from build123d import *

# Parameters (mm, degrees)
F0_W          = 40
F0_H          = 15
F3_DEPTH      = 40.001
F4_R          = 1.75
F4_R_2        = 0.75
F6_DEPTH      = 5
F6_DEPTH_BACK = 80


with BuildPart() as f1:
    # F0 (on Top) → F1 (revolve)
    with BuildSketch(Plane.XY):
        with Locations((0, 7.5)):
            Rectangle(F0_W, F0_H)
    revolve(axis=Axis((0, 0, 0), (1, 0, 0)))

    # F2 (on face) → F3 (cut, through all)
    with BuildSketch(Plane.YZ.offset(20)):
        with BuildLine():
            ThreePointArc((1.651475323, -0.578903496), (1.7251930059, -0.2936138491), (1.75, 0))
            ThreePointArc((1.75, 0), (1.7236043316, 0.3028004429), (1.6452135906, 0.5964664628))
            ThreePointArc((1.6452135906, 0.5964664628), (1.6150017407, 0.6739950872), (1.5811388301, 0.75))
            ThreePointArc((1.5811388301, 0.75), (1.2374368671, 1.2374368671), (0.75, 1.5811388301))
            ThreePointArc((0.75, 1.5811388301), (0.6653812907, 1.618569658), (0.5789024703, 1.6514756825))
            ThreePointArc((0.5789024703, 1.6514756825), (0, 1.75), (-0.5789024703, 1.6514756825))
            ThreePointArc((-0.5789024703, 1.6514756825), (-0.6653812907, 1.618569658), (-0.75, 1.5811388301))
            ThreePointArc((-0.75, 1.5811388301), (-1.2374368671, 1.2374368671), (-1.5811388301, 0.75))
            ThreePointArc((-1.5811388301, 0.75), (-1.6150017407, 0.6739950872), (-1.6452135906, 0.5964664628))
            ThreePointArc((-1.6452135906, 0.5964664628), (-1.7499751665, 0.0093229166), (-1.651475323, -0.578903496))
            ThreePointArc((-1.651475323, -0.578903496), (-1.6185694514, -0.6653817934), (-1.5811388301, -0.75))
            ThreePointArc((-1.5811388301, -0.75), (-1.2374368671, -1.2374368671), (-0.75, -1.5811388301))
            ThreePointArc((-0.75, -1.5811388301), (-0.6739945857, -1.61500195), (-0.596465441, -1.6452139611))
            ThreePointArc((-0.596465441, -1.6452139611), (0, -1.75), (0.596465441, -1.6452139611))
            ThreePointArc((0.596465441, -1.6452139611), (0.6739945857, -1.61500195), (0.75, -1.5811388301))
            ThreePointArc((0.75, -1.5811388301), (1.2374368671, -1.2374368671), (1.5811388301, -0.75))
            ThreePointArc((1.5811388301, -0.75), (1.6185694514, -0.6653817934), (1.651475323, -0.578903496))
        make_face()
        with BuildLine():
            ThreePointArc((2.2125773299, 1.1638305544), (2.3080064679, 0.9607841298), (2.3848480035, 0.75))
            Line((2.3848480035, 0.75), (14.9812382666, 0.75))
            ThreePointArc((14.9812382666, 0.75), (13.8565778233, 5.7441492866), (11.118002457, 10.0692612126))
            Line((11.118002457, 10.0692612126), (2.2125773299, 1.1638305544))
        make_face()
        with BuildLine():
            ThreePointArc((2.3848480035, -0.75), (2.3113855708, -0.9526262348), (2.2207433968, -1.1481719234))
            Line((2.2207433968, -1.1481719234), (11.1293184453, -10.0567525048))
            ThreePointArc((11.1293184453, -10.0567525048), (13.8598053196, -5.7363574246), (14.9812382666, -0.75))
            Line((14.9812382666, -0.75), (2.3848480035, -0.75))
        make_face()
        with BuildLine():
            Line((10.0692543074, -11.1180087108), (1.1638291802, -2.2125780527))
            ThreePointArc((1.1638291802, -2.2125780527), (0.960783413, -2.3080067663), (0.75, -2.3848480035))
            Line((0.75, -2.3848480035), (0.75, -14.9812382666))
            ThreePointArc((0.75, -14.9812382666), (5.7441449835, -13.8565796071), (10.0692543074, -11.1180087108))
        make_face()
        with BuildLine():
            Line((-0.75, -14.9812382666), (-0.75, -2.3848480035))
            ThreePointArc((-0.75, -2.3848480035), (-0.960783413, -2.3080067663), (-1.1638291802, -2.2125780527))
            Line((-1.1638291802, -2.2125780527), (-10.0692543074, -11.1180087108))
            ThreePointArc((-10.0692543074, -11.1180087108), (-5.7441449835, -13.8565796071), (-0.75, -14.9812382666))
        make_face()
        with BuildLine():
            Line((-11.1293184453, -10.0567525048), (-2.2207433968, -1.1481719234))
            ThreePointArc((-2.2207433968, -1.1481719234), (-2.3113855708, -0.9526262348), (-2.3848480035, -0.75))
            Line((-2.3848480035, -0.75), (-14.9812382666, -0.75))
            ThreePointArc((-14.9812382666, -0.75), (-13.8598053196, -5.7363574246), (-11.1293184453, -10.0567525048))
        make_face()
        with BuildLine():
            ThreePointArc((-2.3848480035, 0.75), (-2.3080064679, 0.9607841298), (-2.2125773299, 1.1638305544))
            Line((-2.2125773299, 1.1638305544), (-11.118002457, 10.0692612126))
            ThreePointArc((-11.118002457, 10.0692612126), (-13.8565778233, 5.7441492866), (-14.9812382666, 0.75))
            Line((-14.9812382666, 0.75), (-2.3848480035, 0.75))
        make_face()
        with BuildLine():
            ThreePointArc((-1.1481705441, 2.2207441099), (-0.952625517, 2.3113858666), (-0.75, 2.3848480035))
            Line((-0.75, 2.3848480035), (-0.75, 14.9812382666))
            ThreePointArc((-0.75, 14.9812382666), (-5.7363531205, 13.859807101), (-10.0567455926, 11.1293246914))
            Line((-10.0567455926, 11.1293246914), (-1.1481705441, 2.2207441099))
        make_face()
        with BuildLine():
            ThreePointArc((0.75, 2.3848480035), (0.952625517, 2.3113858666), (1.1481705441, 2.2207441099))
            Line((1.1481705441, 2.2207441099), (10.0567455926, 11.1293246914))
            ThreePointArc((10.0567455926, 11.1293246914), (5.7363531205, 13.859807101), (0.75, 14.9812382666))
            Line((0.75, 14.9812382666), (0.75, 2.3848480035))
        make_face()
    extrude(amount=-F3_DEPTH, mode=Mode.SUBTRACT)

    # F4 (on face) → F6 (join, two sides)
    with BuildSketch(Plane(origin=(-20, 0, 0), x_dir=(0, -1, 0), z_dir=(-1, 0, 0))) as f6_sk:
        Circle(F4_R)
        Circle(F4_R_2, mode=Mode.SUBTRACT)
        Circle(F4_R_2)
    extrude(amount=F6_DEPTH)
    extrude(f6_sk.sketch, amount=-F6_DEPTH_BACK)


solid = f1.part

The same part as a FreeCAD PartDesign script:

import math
import FreeCAD as App
import Part
import Sketcher
from FreeCAD import Vector

doc = App.newDocument("Part")
body = doc.addObject("PartDesign::Body", "Body")

sketch1 = body.newObject("Sketcher::SketchObject", "Sketch")
sketch1.AttachmentSupport = (doc.getObject("XY_Plane"), [""])
sketch1.MapMode = "FlatFace"
sketch1.addGeometry(Part.LineSegment(Vector(-20, 15, 0), Vector(-20, 0, 0)), False)
sketch1.addGeometry(Part.LineSegment(Vector(-20, 0, 0), Vector(20, 0, 0)), False)
sketch1.addGeometry(Part.LineSegment(Vector(20, 0, 0), Vector(20, 15, 0)), False)
sketch1.addGeometry(Part.LineSegment(Vector(20, 15, 0), Vector(-20, 15, 0)), False)
sketch1.addConstraint(Sketcher.Constraint("Coincident", 0, 2, 1, 1))
sketch1.addConstraint(Sketcher.Constraint("Coincident", 1, 2, 2, 1))
sketch1.addConstraint(Sketcher.Constraint("Coincident", 2, 2, 3, 1))
sketch1.addConstraint(Sketcher.Constraint("Coincident", 3, 2, 0, 1))
sketch1.addConstraint(Sketcher.Constraint("Vertical", 0))
sketch1.addConstraint(Sketcher.Constraint("Horizontal", 1))
sketch1.addConstraint(Sketcher.Constraint("Vertical", 2))
sketch1.addConstraint(Sketcher.Constraint("Horizontal", 3))
sketch1.addConstraint(Sketcher.Constraint("Symmetric", 0, 2, 1, 2, -1, 1))
sketch1.addConstraint(Sketcher.Constraint("DistanceX", 1, 1, 1, 2, 40.0))
sketch1.addConstraint(Sketcher.Constraint("DistanceY", 0, 2, 0, 1, 15.0))
revolution = body.newObject("PartDesign::Revolution", "Revolution")
revolution.Profile = sketch1
revolution.ReferenceAxis = (sketch1, ["H_Axis"])
revolution.Angle = 360

sketch2 = body.newObject("Sketcher::SketchObject", "Sketch001")
sketch2.AttachmentSupport = (doc.getObject("YZ_Plane"), [""])
sketch2.MapMode = "FlatFace"
sketch2.AttachmentOffset = App.Placement(Vector(0, 0, 20), App.Rotation())
sketch2.addGeometry(Part.ArcOfCircle(Part.Circle(Vector(0, 0, 0), Vector(0, 0, 1), 1.75), math.radians(-19.32), math.radians(0)), False)
sketch2.addGeometry(Part.ArcOfCircle(Part.Circle(Vector(0, 0, 0), Vector(0, 0, 1), 1.75), math.radians(0), math.radians(19.93)), False)
sketch2.addGeometry(Part.ArcOfCircle(Part.Circle(Vector(0, 0, 0), Vector(0, 0, 1), 1.75), math.radians(19.93), math.radians(25.38)), False)
sketch2.addGeometry(Part.ArcOfCircle(Part.Circle(Vector(0, 0, 0), Vector(0, 0, 1), 1.75), math.radians(25), math.radians(65)), False)
sketch2.addGeometry(Part.ArcOfCircle(Part.Circle(Vector(0, 0, 0), Vector(0, 0, 1), 1.75), math.radians(64.62), math.radians(70.68)), False)
sketch2.addGeometry(Part.ArcOfCircle(Part.Circle(Vector(0, 0, 0), Vector(0, 0, 1), 1.75), math.radians(71), math.radians(109)), False)
sketch2.addGeometry(Part.ArcOfCircle(Part.Circle(Vector(0, 0, 0), Vector(0, 0, 1), 1.75), math.radians(109.32), math.radians(115.38)), False)
sketch2.addGeometry(Part.ArcOfCircle(Part.Circle(Vector(0, 0, 0), Vector(0, 0, 1), 1.75), math.radians(115), math.radians(155)), False)
sketch2.addGeometry(Part.ArcOfCircle(Part.Circle(Vector(0, 0, 0), Vector(0, 0, 1), 1.75), math.radians(154.62), math.radians(160.07)), False)
sketch2.addGeometry(Part.ArcOfCircle(Part.Circle(Vector(0, 0, 0), Vector(0, 0, 1), 1.75), math.radians(160), math.radians(199)), False)
sketch2.addGeometry(Part.ArcOfCircle(Part.Circle(Vector(0, 0, 0), Vector(0, 0, 1), 1.75), math.radians(-160.68), math.radians(-154.62)), False)
sketch2.addGeometry(Part.ArcOfCircle(Part.Circle(Vector(0, 0, 0), Vector(0, 0, 1), 1.75), math.radians(-155), math.radians(-115)), False)
sketch2.addGeometry(Part.ArcOfCircle(Part.Circle(Vector(0, 0, 0), Vector(0, 0, 1), 1.75), math.radians(-115.38), math.radians(-109.93)), False)
sketch2.addGeometry(Part.ArcOfCircle(Part.Circle(Vector(0, 0, 0), Vector(0, 0, 1), 1.75), math.radians(-110), math.radians(-70)), False)
sketch2.addGeometry(Part.ArcOfCircle(Part.Circle(Vector(0, 0, 0), Vector(0, 0, 1), 1.75), math.radians(-70.07), math.radians(-64.62)), False)
sketch2.addGeometry(Part.ArcOfCircle(Part.Circle(Vector(0, 0, 0), Vector(0, 0, 1), 1.75), math.radians(-65), math.radians(-25)), False)
sketch2.addGeometry(Part.ArcOfCircle(Part.Circle(Vector(0, 0, 0), Vector(0, 0, 1), 1.75), math.radians(-25.38), math.radians(-19.32)), False)
sketch2.addGeometry(Part.ArcOfCircle(Part.Circle(Vector(0, 0, 0), Vector(0, 0, 1), 2.5), math.radians(17.46), math.radians(27.74)), False)
sketch2.addGeometry(Part.LineSegment(Vector(2.38, 0.75, 0), Vector(14.98, 0.75, 0)), False)
sketch2.addGeometry(Part.ArcOfCircle(Part.Circle(Vector(0, 0, 0), Vector(0, 0, 1), 15), math.radians(3), math.radians(42)), False)
sketch2.addGeometry(Part.LineSegment(Vector(11.12, 10.07, 0), Vector(2.21, 1.16, 0)), False)
sketch2.addGeometry(Part.ArcOfCircle(Part.Circle(Vector(0, 0, 0), Vector(0, 0, 1), 2.5), math.radians(-27.34), math.radians(-17.46)), False)
sketch2.addGeometry(Part.LineSegment(Vector(2.22, -1.15, 0), Vector(11.13, -10.06, 0)), False)
sketch2.addGeometry(Part.ArcOfCircle(Part.Circle(Vector(0, 0, 0), Vector(0, 0, 1), 15), math.radians(-42), math.radians(-3)), False)
sketch2.addGeometry(Part.LineSegment(Vector(14.98, -0.75, 0), Vector(2.38, -0.75, 0)), False)
sketch2.addGeometry(Part.LineSegment(Vector(10.07, -11.12, 0), Vector(1.16, -2.21, 0)), False)
sketch2.addGeometry(Part.ArcOfCircle(Part.Circle(Vector(0, 0, 0), Vector(0, 0, 1), 2.5), math.radians(-72.54), math.radians(-62.26)), False)
sketch2.addGeometry(Part.LineSegment(Vector(0.75, -2.38, 0), Vector(0.75, -14.98, 0)), False)
sketch2.addGeometry(Part.ArcOfCircle(Part.Circle(Vector(0, 0, 0), Vector(0, 0, 1), 15), math.radians(-87), math.radians(-48)), False)
sketch2.addGeometry(Part.LineSegment(Vector(-0.75, -14.98, 0), Vector(-0.75, -2.38, 0)), False)
sketch2.addGeometry(Part.ArcOfCircle(Part.Circle(Vector(0, 0, 0), Vector(0, 0, 1), 2.5), math.radians(-117.74), math.radians(-107.46)), False)
sketch2.addGeometry(Part.LineSegment(Vector(-1.16, -2.21, 0), Vector(-10.07, -11.12, 0)), False)
sketch2.addGeometry(Part.ArcOfCircle(Part.Circle(Vector(0, 0, 0), Vector(0, 0, 1), 15), math.radians(-132), math.radians(-93)), False)
sketch2.addGeometry(Part.LineSegment(Vector(-11.13, -10.06, 0), Vector(-2.22, -1.15, 0)), False)
sketch2.addGeometry(Part.ArcOfCircle(Part.Circle(Vector(0, 0, 0), Vector(0, 0, 1), 2.5), math.radians(-162.54), math.radians(-152.66)), False)
sketch2.addGeometry(Part.LineSegment(Vector(-2.38, -0.75, 0), Vector(-14.98, -0.75, 0)), False)
sketch2.addGeometry(Part.ArcOfCircle(Part.Circle(Vector(0, 0, 0), Vector(0, 0, 1), 15), math.radians(-177), math.radians(-138)), False)
sketch2.addGeometry(Part.ArcOfCircle(Part.Circle(Vector(0, 0, 0), Vector(0, 0, 1), 2.5), math.radians(152.26), math.radians(162.54)), False)
sketch2.addGeometry(Part.LineSegment(Vector(-2.21, 1.16, 0), Vector(-11.12, 10.07, 0)), False)
sketch2.addGeometry(Part.ArcOfCircle(Part.Circle(Vector(0, 0, 0), Vector(0, 0, 1), 15), math.radians(138), math.radians(177)), False)
sketch2.addGeometry(Part.LineSegment(Vector(-14.98, 0.75, 0), Vector(-2.38, 0.75, 0)), False)
sketch2.addGeometry(Part.ArcOfCircle(Part.Circle(Vector(0, 0, 0), Vector(0, 0, 1), 2.5), math.radians(107.46), math.radians(117.34)), False)
sketch2.addGeometry(Part.LineSegment(Vector(-0.75, 2.38, 0), Vector(-0.75, 14.98, 0)), False)
sketch2.addGeometry(Part.ArcOfCircle(Part.Circle(Vector(0, 0, 0), Vector(0, 0, 1), 15), math.radians(93), math.radians(132)), False)
sketch2.addGeometry(Part.LineSegment(Vector(-10.06, 11.13, 0), Vector(-1.15, 2.22, 0)), False)
sketch2.addGeometry(Part.ArcOfCircle(Part.Circle(Vector(0, 0, 0), Vector(0, 0, 1), 2.5), math.radians(62.66), math.radians(72.54)), False)
sketch2.addGeometry(Part.LineSegment(Vector(1.15, 2.22, 0), Vector(10.06, 11.13, 0)), False)
sketch2.addGeometry(Part.ArcOfCircle(Part.Circle(Vector(0, 0, 0), Vector(0, 0, 1), 15), math.radians(48), math.radians(87)), False)
sketch2.addGeometry(Part.LineSegment(Vector(0.75, 14.98, 0), Vector(0.75, 2.38, 0)), False)
sketch2.addConstraint(Sketcher.Constraint("Tangent", 0, 2, 1, 1))
sketch2.addConstraint(Sketcher.Constraint("Tangent", 1, 2, 2, 1))
sketch2.addConstraint(Sketcher.Constraint("Tangent", 2, 2, 3, 1))
sketch2.addConstraint(Sketcher.Constraint("Tangent", 3, 2, 4, 1))
sketch2.addConstraint(Sketcher.Constraint("Tangent", 4, 2, 5, 1))
sketch2.addConstraint(Sketcher.Constraint("Tangent", 5, 2, 6, 1))
sketch2.addConstraint(Sketcher.Constraint("Tangent", 6, 2, 7, 1))
sketch2.addConstraint(Sketcher.Constraint("Tangent", 7, 2, 8, 1))
sketch2.addConstraint(Sketcher.Constraint("Tangent", 8, 2, 9, 1))
sketch2.addConstraint(Sketcher.Constraint("Tangent", 9, 2, 10, 1))
sketch2.addConstraint(Sketcher.Constraint("Tangent", 10, 2, 11, 1))
sketch2.addConstraint(Sketcher.Constraint("Tangent", 11, 2, 12, 1))
sketch2.addConstraint(Sketcher.Constraint("Tangent", 12, 2, 13, 1))
sketch2.addConstraint(Sketcher.Constraint("Tangent", 13, 2, 14, 1))
sketch2.addConstraint(Sketcher.Constraint("Tangent", 14, 2, 15, 1))
sketch2.addConstraint(Sketcher.Constraint("Tangent", 15, 2, 16, 1))
sketch2.addConstraint(Sketcher.Constraint("Tangent", 16, 2, 0, 1))
sketch2.addConstraint(Sketcher.Constraint("Coincident", 17, 1, 18, 1))
sketch2.addConstraint(Sketcher.Constraint("Coincident", 18, 2, 19, 1))
sketch2.addConstraint(Sketcher.Constraint("Coincident", 19, 2, 20, 1))
sketch2.addConstraint(Sketcher.Constraint("Coincident", 20, 2, 17, 2))
sketch2.addConstraint(Sketcher.Constraint("Coincident", 21, 1, 22, 1))
sketch2.addConstraint(Sketcher.Constraint("Coincident", 22, 2, 23, 1))
sketch2.addConstraint(Sketcher.Constraint("Coincident", 23, 2, 24, 1))
sketch2.addConstraint(Sketcher.Constraint("Coincident", 24, 2, 21, 2))
sketch2.addConstraint(Sketcher.Constraint("Coincident", 25, 2, 26, 2))
sketch2.addConstraint(Sketcher.Constraint("Coincident", 26, 1, 27, 1))
sketch2.addConstraint(Sketcher.Constraint("Coincident", 27, 2, 28, 1))
sketch2.addConstraint(Sketcher.Constraint("Coincident", 28, 2, 25, 1))
sketch2.addConstraint(Sketcher.Constraint("Coincident", 29, 2, 30, 2))
sketch2.addConstraint(Sketcher.Constraint("Coincident", 30, 1, 31, 1))
sketch2.addConstraint(Sketcher.Constraint("Coincident", 31, 2, 32, 1))
sketch2.addConstraint(Sketcher.Constraint("Coincident", 32, 2, 29, 1))
sketch2.addConstraint(Sketcher.Constraint("Coincident", 33, 2, 34, 2))
sketch2.addConstraint(Sketcher.Constraint("Coincident", 34, 1, 35, 1))
sketch2.addConstraint(Sketcher.Constraint("Coincident", 35, 2, 36, 1))
sketch2.addConstraint(Sketcher.Constraint("Coincident", 36, 2, 33, 1))
sketch2.addConstraint(Sketcher.Constraint("Coincident", 37, 1, 38, 1))
sketch2.addConstraint(Sketcher.Constraint("Coincident", 38, 2, 39, 1))
sketch2.addConstraint(Sketcher.Constraint("Coincident", 39, 2, 40, 1))
sketch2.addConstraint(Sketcher.Constraint("Coincident", 40, 2, 37, 2))
sketch2.addConstraint(Sketcher.Constraint("Coincident", 41, 1, 42, 1))
sketch2.addConstraint(Sketcher.Constraint("Coincident", 42, 2, 43, 1))
sketch2.addConstraint(Sketcher.Constraint("Coincident", 43, 2, 44, 1))
sketch2.addConstraint(Sketcher.Constraint("Coincident", 44, 2, 41, 2))
sketch2.addConstraint(Sketcher.Constraint("Coincident", 45, 1, 46, 1))
sketch2.addConstraint(Sketcher.Constraint("Coincident", 46, 2, 47, 1))
sketch2.addConstraint(Sketcher.Constraint("Coincident", 47, 2, 48, 1))
sketch2.addConstraint(Sketcher.Constraint("Coincident", 48, 2, 45, 2))
sketch2.addConstraint(Sketcher.Constraint("Horizontal", 18))
sketch2.addConstraint(Sketcher.Constraint("Horizontal", 24))
sketch2.addConstraint(Sketcher.Constraint("Vertical", 27))
sketch2.addConstraint(Sketcher.Constraint("Vertical", 29))
sketch2.addConstraint(Sketcher.Constraint("Horizontal", 35))
sketch2.addConstraint(Sketcher.Constraint("Horizontal", 40))
sketch2.addConstraint(Sketcher.Constraint("Vertical", 42))
sketch2.addConstraint(Sketcher.Constraint("Vertical", 48))
sketch2.addConstraint(Sketcher.Constraint("Coincident", 0, 3, -1, 1))
sketch2.addConstraint(Sketcher.Constraint("Coincident", 2, 3, -1, 1))
sketch2.addConstraint(Sketcher.Constraint("Coincident", 4, 3, -1, 1))
sketch2.addConstraint(Sketcher.Constraint("Coincident", 6, 3, -1, 1))
sketch2.addConstraint(Sketcher.Constraint("Coincident", 8, 3, -1, 1))
sketch2.addConstraint(Sketcher.Constraint("Coincident", 10, 3, -1, 1))
sketch2.addConstraint(Sketcher.Constraint("Coincident", 12, 3, -1, 1))
sketch2.addConstraint(Sketcher.Constraint("Coincident", 14, 3, -1, 1))
sketch2.addConstraint(Sketcher.Constraint("Coincident", 17, 3, -1, 1))
sketch2.addConstraint(Sketcher.Constraint("Coincident", 19, 3, -1, 1))
sketch2.addConstraint(Sketcher.Constraint("Coincident", 21, 3, -1, 1))
sketch2.addConstraint(Sketcher.Constraint("Coincident", 23, 3, -1, 1))
sketch2.addConstraint(Sketcher.Constraint("Coincident", 26, 3, -1, 1))
sketch2.addConstraint(Sketcher.Constraint("Coincident", 28, 3, -1, 1))
sketch2.addConstraint(Sketcher.Constraint("Coincident", 30, 3, -1, 1))
sketch2.addConstraint(Sketcher.Constraint("Coincident", 32, 3, -1, 1))
sketch2.addConstraint(Sketcher.Constraint("Coincident", 34, 3, -1, 1))
sketch2.addConstraint(Sketcher.Constraint("Coincident", 36, 3, -1, 1))
sketch2.addConstraint(Sketcher.Constraint("Coincident", 37, 3, -1, 1))
sketch2.addConstraint(Sketcher.Constraint("Coincident", 39, 3, -1, 1))
sketch2.addConstraint(Sketcher.Constraint("Coincident", 41, 3, -1, 1))
sketch2.addConstraint(Sketcher.Constraint("Coincident", 43, 3, -1, 1))
sketch2.addConstraint(Sketcher.Constraint("Coincident", 45, 3, -1, 1))
sketch2.addConstraint(Sketcher.Constraint("Coincident", 47, 3, -1, 1))
sketch2.addConstraint(Sketcher.Constraint("Equal", 17, 21))
sketch2.addConstraint(Sketcher.Constraint("Equal", 19, 23))
sketch2.addConstraint(Sketcher.Constraint("Equal", 21, 26))
sketch2.addConstraint(Sketcher.Constraint("Equal", 23, 28))
sketch2.addConstraint(Sketcher.Constraint("Equal", 26, 30))
sketch2.addConstraint(Sketcher.Constraint("Equal", 28, 32))
sketch2.addConstraint(Sketcher.Constraint("Equal", 30, 34))
sketch2.addConstraint(Sketcher.Constraint("Equal", 32, 36))
sketch2.addConstraint(Sketcher.Constraint("Equal", 34, 37))
sketch2.addConstraint(Sketcher.Constraint("Equal", 36, 39))
sketch2.addConstraint(Sketcher.Constraint("Equal", 37, 41))
sketch2.addConstraint(Sketcher.Constraint("Equal", 39, 43))
sketch2.addConstraint(Sketcher.Constraint("Equal", 41, 45))
sketch2.addConstraint(Sketcher.Constraint("Equal", 43, 47))
sketch2.addConstraint(Sketcher.Constraint("PointOnObject", 0, 2, -1))
sketch2.addConstraint(Sketcher.Constraint("Perpendicular", 20, 22))
sketch2.addConstraint(Sketcher.Constraint("Parallel", 22, 25))
sketch2.addConstraint(Sketcher.Constraint("Perpendicular", 25, 31))
sketch2.addConstraint(Sketcher.Constraint("Parallel", 31, 33))
sketch2.addConstraint(Sketcher.Constraint("Perpendicular", 33, 38))
sketch2.addConstraint(Sketcher.Constraint("Parallel", 38, 44))
sketch2.addConstraint(Sketcher.Constraint("Perpendicular", 44, 46))
sketch2.addConstraint(Sketcher.Constraint("Horizontal", 4, 2, 5, 2))
sketch2.addConstraint(Sketcher.Constraint("Horizontal", 3, 2, 6, 2))
sketch2.addConstraint(Sketcher.Constraint("Horizontal", 2, 2, 7, 2))
sketch2.addConstraint(Sketcher.Constraint("Horizontal", 1, 2, 8, 2))
sketch2.addConstraint(Sketcher.Constraint("Horizontal", 12, 2, 13, 2))
sketch2.addConstraint(Sketcher.Constraint("Horizontal", 11, 2, 14, 2))
sketch2.addConstraint(Sketcher.Constraint("Horizontal", 10, 2, 15, 2))
sketch2.addConstraint(Sketcher.Constraint("Horizontal", 9, 2, 16, 2))
sketch2.addConstraint(Sketcher.Constraint("Horizontal", 7, 2, 17, 1))
sketch2.addConstraint(Sketcher.Constraint("Horizontal", 15, 2, 23, 2))
sketch2.addConstraint(Sketcher.Constraint("Horizontal", 26, 1, 29, 2))
sketch2.addConstraint(Sketcher.Constraint("Horizontal", 25, 2, 30, 1))
sketch2.addConstraint(Sketcher.Constraint("Horizontal", 28, 2, 31, 2))
sketch2.addConstraint(Sketcher.Constraint("Horizontal", 21, 1, 33, 2))
sketch2.addConstraint(Sketcher.Constraint("Horizontal", 24, 2, 34, 1))
sketch2.addConstraint(Sketcher.Constraint("Horizontal", 20, 2, 37, 1))
sketch2.addConstraint(Sketcher.Constraint("Horizontal", 18, 2, 39, 2))
sketch2.addConstraint(Sketcher.Constraint("Horizontal", 44, 2, 45, 1))
sketch2.addConstraint(Sketcher.Constraint("Horizontal", 42, 2, 47, 2))
sketch2.addConstraint(Sketcher.Constraint("Vertical", 7, 2, 10, 2))
sketch2.addConstraint(Sketcher.Constraint("Vertical", 6, 2, 11, 2))
sketch2.addConstraint(Sketcher.Constraint("Vertical", 14, 2, 26, 1))
sketch2.addConstraint(Sketcher.Constraint("Vertical", 32, 2, 41, 1))
sketch2.addConstraint(Sketcher.Constraint("Equal", 40, 27))
sketch2.addConstraint(Sketcher.Constraint("Equal", 20, 25))
sketch2.addConstraint(Sketcher.Constraint("Equal", 33, 44))
sketch2.addConstraint(Sketcher.Constraint("Radius", 19, 15.0))
sketch2.addConstraint(Sketcher.Constraint("Radius", 17, 2.5))
sketch2.addConstraint(Sketcher.Constraint("Radius", 0, 1.75))
sketch2.addConstraint(Sketcher.Constraint("DistanceY", -1, 1, 2, 2, 0.75))
sketch2.addConstraint(Sketcher.Constraint("Distance", 22, 12.598632))
sketch2.addConstraint(Sketcher.Constraint("DistanceY", -1, 1, 19, 2, 10.069261))
sketch2.addConstraint(Sketcher.Constraint("DistanceX", -1, 1, 1, 2, 1.645214))
sketch2.addConstraint(Sketcher.Constraint("DistanceX", -1, 1, 4, 2, 0.578902))
sketch2.addConstraint(Sketcher.Constraint("DistanceX", 9, 2, -1, 1, 1.651475))
sketch2.addConstraint(Sketcher.Constraint("DistanceX", 12, 2, -1, 1, 0.596465))
pocket1 = body.newObject("PartDesign::Pocket", "Pocket")
pocket1.Profile = sketch2
pocket1.Type = "ThroughAll"

sketch3 = body.newObject("Sketcher::SketchObject", "Sketch002")
sketch3.AttachmentSupport = (doc.getObject("YZ_Plane"), [""])
sketch3.MapMode = "FlatFace"
sketch3.AttachmentOffset = App.Placement(Vector(0, 0, -20), App.Rotation())
sketch3.addGeometry(Part.Circle(Vector(0, 0, 0), Vector(0, 0, 1), 1.8), False)
sketch3.addConstraint(Sketcher.Constraint("Coincident", 0, 3, -1, 1))
sketch3.addConstraint(Sketcher.Constraint("Diameter", 0, 3.5))
pad1 = body.newObject("PartDesign::Pad", "Pad")
pad1.Profile = sketch3
pad1.Type = "TwoLengths"
pad1.Length = 5
pad1.Length2 = 80
pad1.Reversed = True

doc.recompute()
